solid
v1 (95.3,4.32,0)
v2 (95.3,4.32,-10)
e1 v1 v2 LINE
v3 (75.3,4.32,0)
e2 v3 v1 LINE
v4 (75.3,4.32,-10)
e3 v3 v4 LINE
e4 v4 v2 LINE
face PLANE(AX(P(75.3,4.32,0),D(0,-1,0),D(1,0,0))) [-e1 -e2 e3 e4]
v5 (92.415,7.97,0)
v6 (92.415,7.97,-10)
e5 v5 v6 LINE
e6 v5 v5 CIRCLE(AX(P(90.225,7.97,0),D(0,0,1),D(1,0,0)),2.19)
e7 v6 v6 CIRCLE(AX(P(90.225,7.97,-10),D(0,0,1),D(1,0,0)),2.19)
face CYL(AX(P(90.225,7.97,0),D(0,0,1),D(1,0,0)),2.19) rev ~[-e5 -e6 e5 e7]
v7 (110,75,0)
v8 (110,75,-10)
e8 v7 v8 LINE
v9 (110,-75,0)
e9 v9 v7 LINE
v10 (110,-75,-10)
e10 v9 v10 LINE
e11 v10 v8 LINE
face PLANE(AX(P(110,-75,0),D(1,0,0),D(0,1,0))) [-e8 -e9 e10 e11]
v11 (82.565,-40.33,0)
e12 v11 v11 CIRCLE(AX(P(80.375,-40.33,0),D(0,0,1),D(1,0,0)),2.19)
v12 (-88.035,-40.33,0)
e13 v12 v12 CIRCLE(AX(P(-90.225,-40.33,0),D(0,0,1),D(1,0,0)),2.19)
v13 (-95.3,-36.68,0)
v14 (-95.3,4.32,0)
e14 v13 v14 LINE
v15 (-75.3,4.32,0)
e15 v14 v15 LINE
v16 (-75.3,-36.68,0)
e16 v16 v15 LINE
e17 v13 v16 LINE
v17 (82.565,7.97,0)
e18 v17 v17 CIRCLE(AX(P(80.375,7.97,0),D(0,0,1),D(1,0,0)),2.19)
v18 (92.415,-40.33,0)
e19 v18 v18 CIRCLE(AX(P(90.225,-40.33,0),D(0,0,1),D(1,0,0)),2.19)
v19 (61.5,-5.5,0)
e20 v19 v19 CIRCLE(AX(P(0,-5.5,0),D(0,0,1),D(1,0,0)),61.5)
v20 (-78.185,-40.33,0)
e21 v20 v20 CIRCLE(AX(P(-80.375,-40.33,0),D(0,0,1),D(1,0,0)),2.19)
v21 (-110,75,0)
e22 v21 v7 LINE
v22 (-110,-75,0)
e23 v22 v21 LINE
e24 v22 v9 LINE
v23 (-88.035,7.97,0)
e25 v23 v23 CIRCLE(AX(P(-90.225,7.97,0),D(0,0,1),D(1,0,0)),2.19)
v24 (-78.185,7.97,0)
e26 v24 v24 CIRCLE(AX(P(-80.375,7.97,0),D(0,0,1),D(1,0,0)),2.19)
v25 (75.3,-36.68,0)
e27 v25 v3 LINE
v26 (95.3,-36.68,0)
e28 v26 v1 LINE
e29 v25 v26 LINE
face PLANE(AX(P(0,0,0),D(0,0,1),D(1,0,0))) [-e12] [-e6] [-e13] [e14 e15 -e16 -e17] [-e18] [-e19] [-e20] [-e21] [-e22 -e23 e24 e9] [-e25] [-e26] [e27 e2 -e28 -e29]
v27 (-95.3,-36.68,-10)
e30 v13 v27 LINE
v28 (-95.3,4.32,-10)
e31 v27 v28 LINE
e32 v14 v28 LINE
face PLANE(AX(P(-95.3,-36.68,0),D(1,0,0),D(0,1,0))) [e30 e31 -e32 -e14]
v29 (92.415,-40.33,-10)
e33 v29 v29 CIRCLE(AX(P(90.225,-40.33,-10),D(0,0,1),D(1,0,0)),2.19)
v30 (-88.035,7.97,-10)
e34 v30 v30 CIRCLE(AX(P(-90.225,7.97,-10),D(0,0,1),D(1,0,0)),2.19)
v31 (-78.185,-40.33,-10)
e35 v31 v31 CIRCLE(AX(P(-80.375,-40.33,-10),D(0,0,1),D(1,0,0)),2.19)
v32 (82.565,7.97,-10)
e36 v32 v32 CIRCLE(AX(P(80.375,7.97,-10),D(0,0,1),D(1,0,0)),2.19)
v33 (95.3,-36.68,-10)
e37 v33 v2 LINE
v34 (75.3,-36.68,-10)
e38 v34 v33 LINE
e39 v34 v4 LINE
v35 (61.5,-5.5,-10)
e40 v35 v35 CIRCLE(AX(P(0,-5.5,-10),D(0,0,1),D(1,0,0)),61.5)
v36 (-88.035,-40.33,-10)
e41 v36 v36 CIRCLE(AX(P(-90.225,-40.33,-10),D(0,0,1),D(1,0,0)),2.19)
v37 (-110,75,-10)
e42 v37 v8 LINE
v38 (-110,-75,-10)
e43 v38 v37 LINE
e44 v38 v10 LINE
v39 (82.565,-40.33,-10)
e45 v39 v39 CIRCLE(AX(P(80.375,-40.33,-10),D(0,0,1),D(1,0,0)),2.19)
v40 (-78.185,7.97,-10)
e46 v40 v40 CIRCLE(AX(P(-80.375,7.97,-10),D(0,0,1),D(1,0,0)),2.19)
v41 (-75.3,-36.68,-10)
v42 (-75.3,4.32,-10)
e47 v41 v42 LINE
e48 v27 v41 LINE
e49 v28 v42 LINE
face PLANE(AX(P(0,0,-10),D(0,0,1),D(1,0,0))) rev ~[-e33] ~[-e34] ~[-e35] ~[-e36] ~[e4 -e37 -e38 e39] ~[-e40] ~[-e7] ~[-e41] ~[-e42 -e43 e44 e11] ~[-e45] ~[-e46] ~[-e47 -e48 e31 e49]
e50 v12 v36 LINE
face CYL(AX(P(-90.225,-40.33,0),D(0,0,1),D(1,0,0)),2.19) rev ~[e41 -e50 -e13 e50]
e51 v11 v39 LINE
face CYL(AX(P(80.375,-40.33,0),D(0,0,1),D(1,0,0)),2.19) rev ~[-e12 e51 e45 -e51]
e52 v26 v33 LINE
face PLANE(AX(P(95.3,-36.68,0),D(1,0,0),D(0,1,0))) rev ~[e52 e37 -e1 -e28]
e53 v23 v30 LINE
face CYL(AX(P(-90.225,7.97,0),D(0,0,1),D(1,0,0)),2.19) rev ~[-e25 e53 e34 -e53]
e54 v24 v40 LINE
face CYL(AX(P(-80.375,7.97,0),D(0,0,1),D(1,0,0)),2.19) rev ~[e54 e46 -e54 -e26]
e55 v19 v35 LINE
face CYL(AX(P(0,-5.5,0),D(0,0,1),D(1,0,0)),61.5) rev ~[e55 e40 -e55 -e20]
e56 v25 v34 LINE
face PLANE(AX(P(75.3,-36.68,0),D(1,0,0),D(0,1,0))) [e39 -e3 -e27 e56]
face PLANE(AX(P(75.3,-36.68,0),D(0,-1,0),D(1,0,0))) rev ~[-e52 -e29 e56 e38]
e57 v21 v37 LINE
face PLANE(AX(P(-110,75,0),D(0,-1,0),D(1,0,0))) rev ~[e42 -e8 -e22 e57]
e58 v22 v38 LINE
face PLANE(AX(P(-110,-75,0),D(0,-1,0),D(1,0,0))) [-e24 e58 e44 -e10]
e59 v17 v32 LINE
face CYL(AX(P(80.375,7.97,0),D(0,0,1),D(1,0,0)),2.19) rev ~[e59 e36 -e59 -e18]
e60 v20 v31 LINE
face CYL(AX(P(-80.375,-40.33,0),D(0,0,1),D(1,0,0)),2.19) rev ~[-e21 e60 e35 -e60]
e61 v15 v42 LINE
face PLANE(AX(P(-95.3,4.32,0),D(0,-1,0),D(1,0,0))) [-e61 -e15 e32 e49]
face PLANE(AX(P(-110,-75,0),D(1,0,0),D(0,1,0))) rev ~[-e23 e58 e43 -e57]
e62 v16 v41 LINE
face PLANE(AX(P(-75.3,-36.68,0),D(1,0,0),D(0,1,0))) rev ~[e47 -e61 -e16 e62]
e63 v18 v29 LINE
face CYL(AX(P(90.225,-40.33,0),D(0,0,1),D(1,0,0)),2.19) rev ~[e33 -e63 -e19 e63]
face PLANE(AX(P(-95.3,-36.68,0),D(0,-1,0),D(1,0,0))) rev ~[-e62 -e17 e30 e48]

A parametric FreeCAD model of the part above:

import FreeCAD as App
import Part
import Sketcher

V = App.Vector
Q = App.Units.Quantity

doc = App.newDocument("Part")
body = doc.addObject("PartDesign::Body", "Body")

# Sketch on XY plane
sketch1 = body.newObject("Sketcher::SketchObject", "Sketch")
sketch1.AttachmentSupport = (doc.getObject("XY_Plane"), [""])
sketch1.MapMode = "FlatFace"
sketch1.addGeometry([
    Part.LineSegment(V(-110, 75, 0), V(-110, -75, 0)),  # 0
    Part.LineSegment(V(-110, -75, 0), V(110, -75, 0)),  # 1
    Part.LineSegment(V(110, -75, 0), V(110, 75, 0)),  # 2
    Part.LineSegment(V(110, 75, 0), V(-110, 75, 0)),  # 3
    Part.Circle(V(0, -6, 0), V(0, 0, 1), 62),  # 4
], False)
sketch1.addConstraint([
    Sketcher.Constraint("Coincident", 0, 2, 1, 1),
    Sketcher.Constraint("Coincident", 1, 2, 2, 1),
    Sketcher.Constraint("Coincident", 2, 2, 3, 1),
    Sketcher.Constraint("Coincident", 3, 2, 0, 1),
    Sketcher.Constraint("Vertical", 0),
    Sketcher.Constraint("Horizontal", 1),
    Sketcher.Constraint("Vertical", 2),
    Sketcher.Constraint("Horizontal", 3),
    Sketcher.Constraint("Symmetric", 0, 2, 2, 2, -1, 1),
    Sketcher.Constraint("PointOnObject", 4, 3, -2),
    Sketcher.Constraint("Diameter", 4, Q("123 mm")),
    Sketcher.Constraint("DistanceX", 1, 1, 1, 2, Q("220 mm")),
    Sketcher.Constraint("DistanceY", 0, 2, 0, 1, Q("150 mm")),
    Sketcher.Constraint("DistanceY", 4, 3, -1, 1, Q("5.5 mm")),
])
pad1 = body.newObject("PartDesign::Pad", "Pad")
pad1.Profile = sketch1
pad1.Length = 10
pad1.Reversed = True

# Sketch on XY plane
sketch2 = body.newObject("Sketcher::SketchObject", "Sketch001")
sketch2.AttachmentSupport = (doc.getObject("XY_Plane"), [""])
sketch2.MapMode = "FlatFace"
sketch2.addGeometry([
    Part.LineSegment(V(-95.3, 4.3, 0), V(-95.3, -36.7, 0)),  # 0
    Part.LineSegment(V(-95.3, -36.7, 0), V(-75.3, -36.7, 0)),  # 1
    Part.LineSegment(V(-75.3, -36.7, 0), V(-75.3, 4.3, 0)),  # 2
    Part.LineSegment(V(-75.3, 4.3, 0), V(-95.3, 4.3, 0)),  # 3
    Part.Circle(V(-80.4, 8, 0), V(0, 0, 1), 2.2),  # 4
    Part.Circle(V(-90.2, 8, 0), V(0, 0, 1), 2.2),  # 5
    Part.Circle(V(-80.4, -40.3, 0), V(0, 0, 1), 2.2),  # 6
    Part.Circle(V(-90.2, -40.3, 0), V(0, 0, 1), 2.2),  # 7
    Part.LineSegment(V(75.3, 4.3, 0), V(75.3, -36.7, 0)),  # 8
    Part.LineSegment(V(75.3, -36.7, 0), V(95.3, -36.7, 0)),  # 9
    Part.LineSegment(V(95.3, -36.7, 0), V(95.3, 4.3, 0)),  # 10
    Part.LineSegment(V(95.3, 4.3, 0), V(75.3, 4.3, 0)),  # 11
    Part.Circle(V(80.4, 8, 0), V(0, 0, 1), 2.2),  # 12
    Part.Circle(V(90.2, 8, 0), V(0, 0, 1), 2.2),  # 13
    Part.Circle(V(80.4, -40.3, 0), V(0, 0, 1), 2.2),  # 14
    Part.Circle(V(90.2, -40.3, 0), V(0, 0, 1), 2.2),  # 15
], False)
sketch2.addConstraint([
    Sketcher.Constraint("Coincident", 0, 2, 1, 1),
    Sketcher.Constraint("Coincident", 1, 2, 2, 1),
    Sketcher.Constraint("Coincident", 2, 2, 3, 1),
    Sketcher.Constraint("Coincident", 3, 2, 0, 1),
    Sketcher.Constraint("Coincident", 8, 2, 9, 1),
    Sketcher.Constraint("Coincident", 9, 2, 10, 1),
    Sketcher.Constraint("Coincident", 10, 2, 11, 1),
    Sketcher.Constraint("Coincident", 11, 2, 8, 1),
    Sketcher.Constraint("Vertical", 0),
    Sketcher.Constraint("Horizontal", 1),
    Sketcher.Constraint("Vertical", 2),
    Sketcher.Constraint("Horizontal", 3),
    Sketcher.Constraint("Vertical", 8),
    Sketcher.Constraint("Horizontal", 9),
    Sketcher.Constraint("Vertical", 10),
    Sketcher.Constraint("Horizontal", 11),
    Sketcher.Constraint("Equal", 4, 5),
    Sketcher.Constraint("Equal", 5, 6),
    Sketcher.Constraint("Equal", 6, 7),
    Sketcher.Constraint("Equal", 7, 12),
    Sketcher.Constraint("Equal", 12, 13),
    Sketcher.Constraint("Equal", 13, 14),
    Sketcher.Constraint("Equal", 14, 15),
    Sketcher.Constraint("Symmetric", 4, 3, 12, 3, -2),
    Sketcher.Constraint("Symmetric", 5, 3, 13, 3, -2),
    Sketcher.Constraint("Symmetric", 6, 3, 14, 3, -2),
    Sketcher.Constraint("Symmetric", 7, 3, 15, 3, -2),
    Sketcher.Constraint("Symmetric", 1, 2, 8, 2, -2),
    Sketcher.Constraint("Symmetric", 3, 2, 10, 2, -2),
    Sketcher.Constraint("Horizontal", 4, 3, 5, 3),
    Sketcher.Constraint("Horizontal", 6, 3, 7, 3),
    Sketcher.Constraint("Vertical", 4, 3, 6, 3),
    Sketcher.Constraint("Vertical", 5, 3, 7, 3),
    Sketcher.Constraint("Diameter", 4, Q("4.38 mm")),
    Sketcher.Constraint("DistanceX", 1, 1, 1, 2, Q("20 mm")),
    Sketcher.Constraint("DistanceY", 0, 2, 0, 1, Q("41 mm")),
    Sketcher.Constraint("DistanceX", 0, 2, -1, 1, Q("95.3 mm")),
    Sketcher.Constraint("DistanceY", 6, 3, 4, 3, Q("48.3 mm")),
    Sketcher.Constraint("DistanceX", 5, 3, 12, 3, Q("170.6 mm")),
    Sketcher.Constraint("DistanceY", -1, 1, 4, 3, Q("7.97 mm")),
    Sketcher.Constraint("DistanceY", 0, 2, -1, 1, Q("36.68 mm")),
    Sketcher.Constraint("DistanceX", 5, 3, 4, 3, Q("9.85 mm")),
])
pocket1 = body.newObject("PartDesign::Pocket", "Pocket")
pocket1.Profile = sketch2
pocket1.Type = "ThroughAll"

doc.recompute()
